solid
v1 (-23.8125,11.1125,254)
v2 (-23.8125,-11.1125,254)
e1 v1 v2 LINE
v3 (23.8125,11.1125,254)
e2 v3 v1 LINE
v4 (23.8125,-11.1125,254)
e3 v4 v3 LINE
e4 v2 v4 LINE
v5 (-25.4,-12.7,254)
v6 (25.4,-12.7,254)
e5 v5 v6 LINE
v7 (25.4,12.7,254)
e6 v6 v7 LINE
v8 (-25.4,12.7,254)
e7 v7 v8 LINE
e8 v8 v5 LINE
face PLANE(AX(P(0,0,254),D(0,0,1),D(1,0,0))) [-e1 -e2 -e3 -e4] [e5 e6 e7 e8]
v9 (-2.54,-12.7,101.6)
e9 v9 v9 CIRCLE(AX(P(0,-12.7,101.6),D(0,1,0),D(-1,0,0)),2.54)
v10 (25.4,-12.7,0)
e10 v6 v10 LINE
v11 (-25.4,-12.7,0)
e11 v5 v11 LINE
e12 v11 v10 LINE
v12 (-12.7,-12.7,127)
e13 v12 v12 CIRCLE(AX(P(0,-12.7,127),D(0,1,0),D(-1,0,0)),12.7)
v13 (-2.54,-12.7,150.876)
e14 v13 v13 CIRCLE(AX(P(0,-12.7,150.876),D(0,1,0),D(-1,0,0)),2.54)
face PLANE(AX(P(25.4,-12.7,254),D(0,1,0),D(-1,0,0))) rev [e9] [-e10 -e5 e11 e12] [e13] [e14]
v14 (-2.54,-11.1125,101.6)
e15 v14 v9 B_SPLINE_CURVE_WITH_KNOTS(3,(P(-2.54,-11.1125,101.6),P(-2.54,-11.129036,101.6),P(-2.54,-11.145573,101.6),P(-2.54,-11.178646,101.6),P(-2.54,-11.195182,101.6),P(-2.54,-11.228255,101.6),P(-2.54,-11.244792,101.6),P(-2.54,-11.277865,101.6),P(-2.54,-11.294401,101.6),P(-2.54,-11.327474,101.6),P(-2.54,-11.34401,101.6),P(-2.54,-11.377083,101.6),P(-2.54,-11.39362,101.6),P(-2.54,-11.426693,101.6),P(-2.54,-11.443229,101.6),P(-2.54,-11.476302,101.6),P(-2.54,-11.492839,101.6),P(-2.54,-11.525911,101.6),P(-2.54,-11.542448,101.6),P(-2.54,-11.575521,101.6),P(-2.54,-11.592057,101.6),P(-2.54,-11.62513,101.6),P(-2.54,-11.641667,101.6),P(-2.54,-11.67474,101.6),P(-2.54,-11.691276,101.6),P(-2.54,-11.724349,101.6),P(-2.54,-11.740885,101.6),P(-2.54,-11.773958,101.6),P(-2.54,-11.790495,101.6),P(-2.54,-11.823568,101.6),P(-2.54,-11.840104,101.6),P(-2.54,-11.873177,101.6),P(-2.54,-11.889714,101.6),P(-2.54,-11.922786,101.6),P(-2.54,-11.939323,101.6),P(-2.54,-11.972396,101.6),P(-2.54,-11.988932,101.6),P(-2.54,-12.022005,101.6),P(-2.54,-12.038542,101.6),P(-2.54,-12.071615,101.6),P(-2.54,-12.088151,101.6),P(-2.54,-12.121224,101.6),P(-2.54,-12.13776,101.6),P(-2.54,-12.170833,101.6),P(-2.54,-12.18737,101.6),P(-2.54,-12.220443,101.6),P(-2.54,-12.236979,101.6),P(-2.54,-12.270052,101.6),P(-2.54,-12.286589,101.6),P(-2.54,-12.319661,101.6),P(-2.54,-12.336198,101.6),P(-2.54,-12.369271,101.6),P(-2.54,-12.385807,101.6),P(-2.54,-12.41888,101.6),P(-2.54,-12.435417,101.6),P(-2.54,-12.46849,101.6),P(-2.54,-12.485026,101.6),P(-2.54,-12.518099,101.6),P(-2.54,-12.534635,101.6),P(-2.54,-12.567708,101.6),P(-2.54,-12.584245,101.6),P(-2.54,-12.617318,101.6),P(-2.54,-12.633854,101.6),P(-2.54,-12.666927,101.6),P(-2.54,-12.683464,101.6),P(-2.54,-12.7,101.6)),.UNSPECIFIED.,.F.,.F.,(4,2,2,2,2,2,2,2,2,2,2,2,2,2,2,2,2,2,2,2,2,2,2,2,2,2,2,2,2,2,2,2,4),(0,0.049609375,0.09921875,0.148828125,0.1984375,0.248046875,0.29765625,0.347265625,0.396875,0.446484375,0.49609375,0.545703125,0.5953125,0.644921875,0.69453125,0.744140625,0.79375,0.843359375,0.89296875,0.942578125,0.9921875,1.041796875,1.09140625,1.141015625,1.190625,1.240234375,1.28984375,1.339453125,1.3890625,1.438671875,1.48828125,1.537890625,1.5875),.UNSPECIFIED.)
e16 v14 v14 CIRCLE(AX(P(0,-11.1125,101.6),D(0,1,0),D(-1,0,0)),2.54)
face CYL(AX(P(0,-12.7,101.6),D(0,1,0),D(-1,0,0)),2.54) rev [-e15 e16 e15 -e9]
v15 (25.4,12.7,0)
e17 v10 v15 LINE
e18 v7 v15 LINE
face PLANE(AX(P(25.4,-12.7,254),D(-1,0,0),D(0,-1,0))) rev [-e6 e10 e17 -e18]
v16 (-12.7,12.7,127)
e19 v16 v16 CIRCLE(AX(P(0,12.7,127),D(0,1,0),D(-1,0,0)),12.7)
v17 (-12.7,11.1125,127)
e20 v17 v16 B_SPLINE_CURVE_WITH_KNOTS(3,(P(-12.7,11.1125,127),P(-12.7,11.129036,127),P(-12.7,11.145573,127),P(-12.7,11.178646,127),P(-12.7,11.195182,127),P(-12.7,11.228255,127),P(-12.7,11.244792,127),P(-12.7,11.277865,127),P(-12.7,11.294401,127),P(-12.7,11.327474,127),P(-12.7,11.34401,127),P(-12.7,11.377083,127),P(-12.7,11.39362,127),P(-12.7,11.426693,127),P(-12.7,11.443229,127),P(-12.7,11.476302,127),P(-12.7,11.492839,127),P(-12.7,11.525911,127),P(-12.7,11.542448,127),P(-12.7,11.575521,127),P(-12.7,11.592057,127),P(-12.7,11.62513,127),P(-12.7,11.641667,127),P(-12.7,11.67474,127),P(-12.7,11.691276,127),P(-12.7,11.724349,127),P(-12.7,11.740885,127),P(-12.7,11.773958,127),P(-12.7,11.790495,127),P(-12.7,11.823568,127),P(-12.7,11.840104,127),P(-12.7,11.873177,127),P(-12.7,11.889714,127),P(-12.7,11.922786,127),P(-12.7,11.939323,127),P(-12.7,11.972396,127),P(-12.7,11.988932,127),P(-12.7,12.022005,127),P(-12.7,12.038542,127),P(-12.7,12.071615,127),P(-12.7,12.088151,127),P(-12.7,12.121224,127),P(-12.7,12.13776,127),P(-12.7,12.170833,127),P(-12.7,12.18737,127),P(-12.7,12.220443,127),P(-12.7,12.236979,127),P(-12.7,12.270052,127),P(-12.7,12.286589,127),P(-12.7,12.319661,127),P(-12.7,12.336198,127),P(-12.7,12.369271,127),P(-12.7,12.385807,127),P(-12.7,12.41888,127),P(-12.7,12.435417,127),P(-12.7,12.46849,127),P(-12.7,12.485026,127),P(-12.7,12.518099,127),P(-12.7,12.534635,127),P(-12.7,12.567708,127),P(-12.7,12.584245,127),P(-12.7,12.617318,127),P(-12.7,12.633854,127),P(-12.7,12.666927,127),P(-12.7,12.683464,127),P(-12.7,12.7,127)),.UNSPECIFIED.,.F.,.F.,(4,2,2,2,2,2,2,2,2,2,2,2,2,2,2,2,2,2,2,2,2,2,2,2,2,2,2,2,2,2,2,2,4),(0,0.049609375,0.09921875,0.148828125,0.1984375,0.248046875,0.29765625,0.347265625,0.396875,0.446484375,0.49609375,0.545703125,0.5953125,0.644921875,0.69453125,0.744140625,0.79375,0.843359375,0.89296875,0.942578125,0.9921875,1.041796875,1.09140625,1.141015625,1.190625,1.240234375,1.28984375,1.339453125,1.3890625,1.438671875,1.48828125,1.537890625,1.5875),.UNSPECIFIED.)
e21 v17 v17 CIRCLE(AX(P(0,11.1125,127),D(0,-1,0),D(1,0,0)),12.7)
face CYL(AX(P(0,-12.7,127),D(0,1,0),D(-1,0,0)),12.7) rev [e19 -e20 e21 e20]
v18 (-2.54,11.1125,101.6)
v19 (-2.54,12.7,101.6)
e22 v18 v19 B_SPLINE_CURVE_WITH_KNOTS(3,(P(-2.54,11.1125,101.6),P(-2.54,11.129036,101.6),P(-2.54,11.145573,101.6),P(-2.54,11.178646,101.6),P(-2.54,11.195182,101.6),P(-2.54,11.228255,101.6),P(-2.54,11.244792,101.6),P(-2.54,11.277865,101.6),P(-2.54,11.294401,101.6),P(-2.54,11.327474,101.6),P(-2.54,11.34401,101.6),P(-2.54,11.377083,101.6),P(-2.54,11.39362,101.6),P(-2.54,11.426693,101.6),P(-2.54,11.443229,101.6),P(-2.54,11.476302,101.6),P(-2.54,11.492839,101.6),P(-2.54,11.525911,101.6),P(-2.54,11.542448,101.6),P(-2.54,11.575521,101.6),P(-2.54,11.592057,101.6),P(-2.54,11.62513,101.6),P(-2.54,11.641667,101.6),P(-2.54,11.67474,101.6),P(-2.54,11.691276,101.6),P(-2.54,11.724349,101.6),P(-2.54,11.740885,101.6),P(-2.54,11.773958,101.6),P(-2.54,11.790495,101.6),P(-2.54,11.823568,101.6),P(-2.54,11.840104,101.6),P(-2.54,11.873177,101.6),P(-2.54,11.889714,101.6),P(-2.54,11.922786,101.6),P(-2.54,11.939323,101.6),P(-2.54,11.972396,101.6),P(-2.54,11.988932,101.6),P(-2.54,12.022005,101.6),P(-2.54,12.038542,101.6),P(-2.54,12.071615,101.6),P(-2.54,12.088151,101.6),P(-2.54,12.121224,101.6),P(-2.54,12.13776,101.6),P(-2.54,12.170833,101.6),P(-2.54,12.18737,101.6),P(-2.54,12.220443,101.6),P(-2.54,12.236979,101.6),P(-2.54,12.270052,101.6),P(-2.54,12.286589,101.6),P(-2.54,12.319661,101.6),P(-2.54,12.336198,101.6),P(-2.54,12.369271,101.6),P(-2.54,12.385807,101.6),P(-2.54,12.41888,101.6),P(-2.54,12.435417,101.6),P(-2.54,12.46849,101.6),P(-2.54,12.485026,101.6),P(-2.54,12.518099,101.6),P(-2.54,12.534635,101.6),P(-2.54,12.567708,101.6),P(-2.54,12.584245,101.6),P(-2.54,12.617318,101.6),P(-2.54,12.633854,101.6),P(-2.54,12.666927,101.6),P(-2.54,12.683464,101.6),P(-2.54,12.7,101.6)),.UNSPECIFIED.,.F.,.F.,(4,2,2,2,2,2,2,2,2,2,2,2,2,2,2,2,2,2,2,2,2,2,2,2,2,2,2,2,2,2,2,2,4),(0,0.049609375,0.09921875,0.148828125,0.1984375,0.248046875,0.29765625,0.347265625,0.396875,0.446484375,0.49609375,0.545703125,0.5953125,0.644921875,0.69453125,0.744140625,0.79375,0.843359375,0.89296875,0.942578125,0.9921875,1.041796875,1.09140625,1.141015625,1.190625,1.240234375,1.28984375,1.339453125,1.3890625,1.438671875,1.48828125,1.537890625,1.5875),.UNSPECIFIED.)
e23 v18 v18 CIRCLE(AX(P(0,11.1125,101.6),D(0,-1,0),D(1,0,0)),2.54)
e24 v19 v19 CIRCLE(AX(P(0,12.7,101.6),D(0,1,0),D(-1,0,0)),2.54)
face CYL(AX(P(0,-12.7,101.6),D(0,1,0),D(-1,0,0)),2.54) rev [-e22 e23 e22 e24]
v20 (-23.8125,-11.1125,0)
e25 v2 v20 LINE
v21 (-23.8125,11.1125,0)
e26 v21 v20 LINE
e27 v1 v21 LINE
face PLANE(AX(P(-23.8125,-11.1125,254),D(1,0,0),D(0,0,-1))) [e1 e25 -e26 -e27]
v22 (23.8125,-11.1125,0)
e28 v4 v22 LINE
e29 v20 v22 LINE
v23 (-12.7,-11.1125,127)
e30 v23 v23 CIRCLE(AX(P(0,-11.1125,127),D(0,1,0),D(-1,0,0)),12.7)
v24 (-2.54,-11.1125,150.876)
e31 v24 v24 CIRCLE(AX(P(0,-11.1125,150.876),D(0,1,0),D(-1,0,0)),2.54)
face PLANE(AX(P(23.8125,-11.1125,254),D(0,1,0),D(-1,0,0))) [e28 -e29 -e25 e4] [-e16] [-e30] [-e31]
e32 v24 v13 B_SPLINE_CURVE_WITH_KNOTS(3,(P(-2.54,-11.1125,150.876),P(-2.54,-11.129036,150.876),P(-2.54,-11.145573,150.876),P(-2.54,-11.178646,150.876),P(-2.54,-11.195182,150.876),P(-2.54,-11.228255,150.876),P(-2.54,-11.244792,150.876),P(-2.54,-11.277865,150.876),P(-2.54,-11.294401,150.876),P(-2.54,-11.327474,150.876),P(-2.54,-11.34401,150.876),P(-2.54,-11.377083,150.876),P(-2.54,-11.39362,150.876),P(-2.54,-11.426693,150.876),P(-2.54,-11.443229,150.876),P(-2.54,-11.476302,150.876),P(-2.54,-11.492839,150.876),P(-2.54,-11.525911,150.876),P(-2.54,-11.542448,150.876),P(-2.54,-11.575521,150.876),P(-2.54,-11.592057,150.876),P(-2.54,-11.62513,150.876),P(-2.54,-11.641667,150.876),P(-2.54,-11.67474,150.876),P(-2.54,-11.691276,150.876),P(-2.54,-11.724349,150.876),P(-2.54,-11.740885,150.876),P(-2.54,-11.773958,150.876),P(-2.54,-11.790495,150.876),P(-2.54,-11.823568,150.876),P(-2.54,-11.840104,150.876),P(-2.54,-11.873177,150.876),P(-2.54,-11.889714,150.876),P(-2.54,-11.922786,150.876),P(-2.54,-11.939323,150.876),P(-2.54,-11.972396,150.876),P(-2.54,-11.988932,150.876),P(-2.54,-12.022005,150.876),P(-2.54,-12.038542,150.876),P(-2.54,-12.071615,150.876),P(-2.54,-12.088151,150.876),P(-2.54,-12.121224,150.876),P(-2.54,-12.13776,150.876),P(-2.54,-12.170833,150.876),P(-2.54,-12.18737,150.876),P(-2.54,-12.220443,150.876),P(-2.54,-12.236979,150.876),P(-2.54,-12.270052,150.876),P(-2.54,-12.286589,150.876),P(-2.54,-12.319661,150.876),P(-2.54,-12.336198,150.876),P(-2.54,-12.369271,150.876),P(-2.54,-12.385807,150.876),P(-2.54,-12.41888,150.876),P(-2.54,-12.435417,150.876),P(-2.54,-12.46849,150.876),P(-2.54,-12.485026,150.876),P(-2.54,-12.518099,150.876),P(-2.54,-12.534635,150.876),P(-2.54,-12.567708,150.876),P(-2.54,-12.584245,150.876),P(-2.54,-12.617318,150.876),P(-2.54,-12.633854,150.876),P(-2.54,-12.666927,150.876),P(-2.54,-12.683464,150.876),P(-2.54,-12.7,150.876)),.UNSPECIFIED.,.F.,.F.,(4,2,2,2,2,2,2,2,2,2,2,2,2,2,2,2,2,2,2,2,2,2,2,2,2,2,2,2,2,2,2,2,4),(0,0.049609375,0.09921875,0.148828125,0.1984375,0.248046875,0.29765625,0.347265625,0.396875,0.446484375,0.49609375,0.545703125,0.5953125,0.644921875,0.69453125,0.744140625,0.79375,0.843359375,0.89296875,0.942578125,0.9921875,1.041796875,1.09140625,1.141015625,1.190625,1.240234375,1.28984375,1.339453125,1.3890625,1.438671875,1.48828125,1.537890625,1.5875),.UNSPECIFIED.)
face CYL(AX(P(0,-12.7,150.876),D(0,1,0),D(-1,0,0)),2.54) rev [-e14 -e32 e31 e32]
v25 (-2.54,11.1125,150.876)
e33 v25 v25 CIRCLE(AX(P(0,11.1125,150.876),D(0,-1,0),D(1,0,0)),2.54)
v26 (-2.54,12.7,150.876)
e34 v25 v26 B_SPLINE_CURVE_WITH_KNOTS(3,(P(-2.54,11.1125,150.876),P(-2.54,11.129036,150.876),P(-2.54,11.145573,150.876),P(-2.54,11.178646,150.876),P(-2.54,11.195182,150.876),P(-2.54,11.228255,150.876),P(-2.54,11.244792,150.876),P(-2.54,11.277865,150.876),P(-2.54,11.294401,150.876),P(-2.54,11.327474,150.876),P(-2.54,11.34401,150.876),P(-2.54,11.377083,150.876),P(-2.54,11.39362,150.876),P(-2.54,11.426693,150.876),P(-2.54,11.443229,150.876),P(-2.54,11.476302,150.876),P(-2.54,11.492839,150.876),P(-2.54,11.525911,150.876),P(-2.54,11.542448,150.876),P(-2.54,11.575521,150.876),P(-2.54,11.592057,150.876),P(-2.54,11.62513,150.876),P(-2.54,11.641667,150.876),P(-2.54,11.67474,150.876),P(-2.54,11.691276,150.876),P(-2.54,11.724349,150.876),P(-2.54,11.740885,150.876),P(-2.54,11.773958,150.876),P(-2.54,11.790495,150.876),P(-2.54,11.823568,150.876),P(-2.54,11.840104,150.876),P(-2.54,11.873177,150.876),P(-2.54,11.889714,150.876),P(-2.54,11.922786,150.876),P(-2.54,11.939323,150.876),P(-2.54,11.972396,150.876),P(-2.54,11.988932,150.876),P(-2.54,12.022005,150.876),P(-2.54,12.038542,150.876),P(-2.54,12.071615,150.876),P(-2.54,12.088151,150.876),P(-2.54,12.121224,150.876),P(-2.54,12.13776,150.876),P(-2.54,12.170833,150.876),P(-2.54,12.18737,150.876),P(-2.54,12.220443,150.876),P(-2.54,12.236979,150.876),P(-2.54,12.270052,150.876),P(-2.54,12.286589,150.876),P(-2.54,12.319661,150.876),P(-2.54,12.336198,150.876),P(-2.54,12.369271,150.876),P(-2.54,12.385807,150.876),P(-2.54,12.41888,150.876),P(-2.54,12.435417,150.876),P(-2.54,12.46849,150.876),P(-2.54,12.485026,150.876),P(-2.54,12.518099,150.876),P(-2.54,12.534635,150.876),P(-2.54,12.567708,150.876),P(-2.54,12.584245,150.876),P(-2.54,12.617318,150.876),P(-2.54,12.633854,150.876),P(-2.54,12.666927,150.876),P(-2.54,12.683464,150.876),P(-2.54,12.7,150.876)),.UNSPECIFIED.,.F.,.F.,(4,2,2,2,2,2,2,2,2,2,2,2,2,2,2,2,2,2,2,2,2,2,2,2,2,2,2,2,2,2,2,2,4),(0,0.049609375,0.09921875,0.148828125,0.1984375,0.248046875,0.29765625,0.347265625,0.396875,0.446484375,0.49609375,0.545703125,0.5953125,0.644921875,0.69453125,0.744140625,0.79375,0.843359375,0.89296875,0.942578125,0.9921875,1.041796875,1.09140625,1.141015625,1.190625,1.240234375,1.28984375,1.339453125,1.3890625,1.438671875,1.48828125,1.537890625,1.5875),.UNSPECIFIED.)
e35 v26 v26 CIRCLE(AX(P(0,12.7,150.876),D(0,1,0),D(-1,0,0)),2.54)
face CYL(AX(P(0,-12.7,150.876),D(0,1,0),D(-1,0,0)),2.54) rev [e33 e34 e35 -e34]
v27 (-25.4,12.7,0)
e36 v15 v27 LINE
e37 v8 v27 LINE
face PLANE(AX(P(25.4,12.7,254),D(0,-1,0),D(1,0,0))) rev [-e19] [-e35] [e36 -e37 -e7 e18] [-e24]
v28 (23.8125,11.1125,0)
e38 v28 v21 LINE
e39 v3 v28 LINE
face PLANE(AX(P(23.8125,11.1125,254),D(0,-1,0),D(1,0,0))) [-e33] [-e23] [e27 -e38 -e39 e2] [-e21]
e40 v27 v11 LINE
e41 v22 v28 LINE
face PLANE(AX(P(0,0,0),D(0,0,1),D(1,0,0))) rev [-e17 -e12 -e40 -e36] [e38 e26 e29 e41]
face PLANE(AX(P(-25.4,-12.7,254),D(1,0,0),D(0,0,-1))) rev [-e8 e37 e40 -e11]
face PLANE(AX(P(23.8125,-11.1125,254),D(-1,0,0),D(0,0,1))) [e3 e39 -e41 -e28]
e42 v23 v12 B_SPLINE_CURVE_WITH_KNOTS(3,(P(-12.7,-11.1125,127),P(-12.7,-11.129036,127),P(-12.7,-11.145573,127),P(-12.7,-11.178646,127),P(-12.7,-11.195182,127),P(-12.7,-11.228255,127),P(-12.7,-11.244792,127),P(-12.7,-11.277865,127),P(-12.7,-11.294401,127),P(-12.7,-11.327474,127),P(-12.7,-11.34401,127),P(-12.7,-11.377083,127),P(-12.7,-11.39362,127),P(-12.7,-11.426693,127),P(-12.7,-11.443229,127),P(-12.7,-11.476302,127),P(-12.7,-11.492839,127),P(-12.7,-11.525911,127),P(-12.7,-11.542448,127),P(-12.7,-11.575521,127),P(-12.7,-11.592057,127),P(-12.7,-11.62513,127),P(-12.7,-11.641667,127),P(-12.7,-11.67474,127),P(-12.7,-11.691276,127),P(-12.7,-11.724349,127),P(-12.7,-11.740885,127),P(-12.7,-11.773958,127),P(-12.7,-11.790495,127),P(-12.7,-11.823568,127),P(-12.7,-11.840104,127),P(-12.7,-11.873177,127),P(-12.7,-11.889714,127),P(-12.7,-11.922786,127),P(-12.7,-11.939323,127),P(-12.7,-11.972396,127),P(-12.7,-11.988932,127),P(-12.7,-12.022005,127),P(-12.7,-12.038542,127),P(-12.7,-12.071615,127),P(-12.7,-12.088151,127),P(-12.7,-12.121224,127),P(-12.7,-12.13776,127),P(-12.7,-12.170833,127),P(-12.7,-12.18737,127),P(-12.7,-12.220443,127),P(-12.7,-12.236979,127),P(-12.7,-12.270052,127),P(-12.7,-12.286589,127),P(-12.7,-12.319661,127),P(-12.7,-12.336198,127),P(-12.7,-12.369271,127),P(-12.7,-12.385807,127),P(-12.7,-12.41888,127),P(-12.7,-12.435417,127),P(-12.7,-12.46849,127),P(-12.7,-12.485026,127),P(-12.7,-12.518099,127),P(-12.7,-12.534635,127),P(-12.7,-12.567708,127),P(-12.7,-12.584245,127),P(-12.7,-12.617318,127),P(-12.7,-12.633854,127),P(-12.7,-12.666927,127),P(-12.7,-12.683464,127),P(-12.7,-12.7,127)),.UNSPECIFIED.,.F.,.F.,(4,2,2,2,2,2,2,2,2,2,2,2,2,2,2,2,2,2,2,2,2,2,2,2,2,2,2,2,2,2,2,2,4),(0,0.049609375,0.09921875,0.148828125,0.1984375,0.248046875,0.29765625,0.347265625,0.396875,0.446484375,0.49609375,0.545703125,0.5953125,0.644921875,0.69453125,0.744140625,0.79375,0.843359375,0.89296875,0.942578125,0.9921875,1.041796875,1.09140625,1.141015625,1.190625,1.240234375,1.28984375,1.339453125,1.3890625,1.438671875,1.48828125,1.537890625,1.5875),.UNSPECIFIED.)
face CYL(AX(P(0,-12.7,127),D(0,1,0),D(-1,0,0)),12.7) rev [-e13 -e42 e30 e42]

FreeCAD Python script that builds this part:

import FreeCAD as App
import Part
import Sketcher
from FreeCAD import Vector
Q = App.Units.Quantity

doc = App.newDocument("Part")
params = doc.addObject("Spreadsheet::Sheet", "Params")
for row, (alias, value) in enumerate([
    ("sketch1_width", "2 in"),
    ("sketch1_height", "1 in"),
    ("sketch1_width2", "1.875 in"),
    ("sketch1_height2", "0.875 in"),
    ("pad1_length", "10 in"),
    ("sketch2_diameter", "1 in"),
    ("sketch2_diameter2", "0.2 in"),
], start=1):
    params.set(f"A{row}", alias)
    params.set(f"B{row}", "=" + value)
    params.setAlias(f"B{row}", alias)

body = doc.addObject("PartDesign::Body", "Body")

# Sketch on XY plane
sketch1 = body.newObject("Sketcher::SketchObject", "Sketch")
sketch1.AttachmentSupport = (doc.getObject("XY_Plane"), [""])
sketch1.MapMode = "FlatFace"
sketch1.addGeometry(Part.LineSegment(Vector(-25.4, 12.7, 0), Vector(-25.4, -12.7, 0)), False)
sketch1.addGeometry(Part.LineSegment(Vector(-25.4, -12.7, 0), Vector(25.4, -12.7, 0)), False)
sketch1.addGeometry(Part.LineSegment(Vector(25.4, -12.7, 0), Vector(25.4, 12.7, 0)), False)
sketch1.addGeometry(Part.LineSegment(Vector(25.4, 12.7, 0), Vector(-25.4, 12.7, 0)), False)
sketch1.addGeometry(Part.LineSegment(Vector(23.8125, -11.1125, 0), Vector(-23.8125, -11.1125, 0)), False)
sketch1.addGeometry(Part.LineSegment(Vector(-23.8125, -11.1125, 0), Vector(-23.8125, 11.1125, 0)), False)
sketch1.addGeometry(Part.LineSegment(Vector(-23.8125, 11.1125, 0), Vector(23.8125, 11.1125, 0)), False)
sketch1.addGeometry(Part.LineSegment(Vector(23.8125, 11.1125, 0), Vector(23.8125, -11.1125, 0)), False)
sketch1.addConstraint(Sketcher.Constraint("Coincident", 0, 2, 1, 1))
sketch1.addConstraint(Sketcher.Constraint("Coincident", 1, 2, 2, 1))
sketch1.addConstraint(Sketcher.Constraint("Coincident", 2, 2, 3, 1))
sketch1.addConstraint(Sketcher.Constraint("Coincident", 3, 2, 0, 1))
sketch1.addConstraint(Sketcher.Constraint("Coincident", 4, 2, 5, 1))
sketch1.addConstraint(Sketcher.Constraint("Coincident", 5, 2, 6, 1))
sketch1.addConstraint(Sketcher.Constraint("Coincident", 6, 2, 7, 1))
sketch1.addConstraint(Sketcher.Constraint("Coincident", 7, 2, 4, 1))
sketch1.addConstraint(Sketcher.Constraint("Vertical", 0))
sketch1.addConstraint(Sketcher.Constraint("Horizontal", 1))
sketch1.addConstraint(Sketcher.Constraint("Vertical", 2))
sketch1.addConstraint(Sketcher.Constraint("Horizontal", 3))
sketch1.addConstraint(Sketcher.Constraint("Horizontal", 4))
sketch1.addConstraint(Sketcher.Constraint("Vertical", 5))
sketch1.addConstraint(Sketcher.Constraint("Horizontal", 6))
sketch1.addConstraint(Sketcher.Constraint("Vertical", 7))
sketch1.addConstraint(Sketcher.Constraint("Symmetric", 0, 2, 2, 2, -1, 1))
sketch1.addConstraint(Sketcher.Constraint("Symmetric", 4, 2, 6, 2, -1, 1))
sketch1.addConstraint(Sketcher.Constraint("DistanceX", 1, 1, 1, 2, Q("2 in")))
sketch1.addConstraint(Sketcher.Constraint("DistanceY", 0, 2, 0, 1, Q("1 in")))
sketch1.addConstraint(Sketcher.Constraint("DistanceX", 4, 2, 4, 1, Q("1.875 in")))
sketch1.addConstraint(Sketcher.Constraint("DistanceY", 5, 1, 5, 2, Q("0.875 in")))
sketch1.setExpression("Constraints[18]", "Params.sketch1_width")
sketch1.setExpression("Constraints[19]", "Params.sketch1_height")
sketch1.setExpression("Constraints[20]", "Params.sketch1_width2")
sketch1.setExpression("Constraints[21]", "Params.sketch1_height2")
pad1 = body.newObject("PartDesign::Pad", "Pad")
pad1.Profile = sketch1
pad1.setExpression("Length", "Params.pad1_length")

# Sketch on XZ plane
sketch2 = body.newObject("Sketcher::SketchObject", "Sketch001")
sketch2.AttachmentSupport = (doc.getObject("XZ_Plane"), [""])
sketch2.MapMode = "FlatFace"
sketch2.AttachmentOffset = App.Placement(Vector(0, 0, -0.5 * 25.4), App.Rotation())
sketch2.addGeometry(Part.Circle(Vector(0, 127, 0), Vector(0, 0, 1), 12.7), False)
sketch2.addGeometry(Part.Circle(Vector(0, 101.6, 0), Vector(0, 0, 1), 2.54), False)
sketch2.addGeometry(Part.Circle(Vector(0, 150.876, 0), Vector(0, 0, 1), 2.54), False)
sketch2.addConstraint(Sketcher.Constraint("Equal", 1, 2))
sketch2.addConstraint(Sketcher.Constraint("PointOnObject", 0, 3, -2))
sketch2.addConstraint(Sketcher.Constraint("PointOnObject", 1, 3, -2))
sketch2.addConstraint(Sketcher.Constraint("PointOnObject", 2, 3, -2))
sketch2.addConstraint(Sketcher.Constraint("Diameter", 0, Q("1 in")))
sketch2.addConstraint(Sketcher.Constraint("Diameter", 1, Q("0.2 in")))
sketch2.addConstraint(Sketcher.Constraint("DistanceY", -1, 1, 0, 3, Q("5 in")))
sketch2.addConstraint(Sketcher.Constraint("DistanceY", -1, 1, 1, 3, Q("4 in")))
sketch2.addConstraint(Sketcher.Constraint("DistanceY", -1, 1, 2, 3, Q("5.94 in")))
sketch2.setExpression("Constraints[4]", "Params.sketch2_diameter")
sketch2.setExpression("Constraints[5]", "Params.sketch2_diameter2")
pocket1 = body.newObject("PartDesign::Pocket", "Pocket")
pocket1.Profile = sketch2
pocket1.Type = "ThroughAll"
pocket1.Reversed = True

doc.recompute()
